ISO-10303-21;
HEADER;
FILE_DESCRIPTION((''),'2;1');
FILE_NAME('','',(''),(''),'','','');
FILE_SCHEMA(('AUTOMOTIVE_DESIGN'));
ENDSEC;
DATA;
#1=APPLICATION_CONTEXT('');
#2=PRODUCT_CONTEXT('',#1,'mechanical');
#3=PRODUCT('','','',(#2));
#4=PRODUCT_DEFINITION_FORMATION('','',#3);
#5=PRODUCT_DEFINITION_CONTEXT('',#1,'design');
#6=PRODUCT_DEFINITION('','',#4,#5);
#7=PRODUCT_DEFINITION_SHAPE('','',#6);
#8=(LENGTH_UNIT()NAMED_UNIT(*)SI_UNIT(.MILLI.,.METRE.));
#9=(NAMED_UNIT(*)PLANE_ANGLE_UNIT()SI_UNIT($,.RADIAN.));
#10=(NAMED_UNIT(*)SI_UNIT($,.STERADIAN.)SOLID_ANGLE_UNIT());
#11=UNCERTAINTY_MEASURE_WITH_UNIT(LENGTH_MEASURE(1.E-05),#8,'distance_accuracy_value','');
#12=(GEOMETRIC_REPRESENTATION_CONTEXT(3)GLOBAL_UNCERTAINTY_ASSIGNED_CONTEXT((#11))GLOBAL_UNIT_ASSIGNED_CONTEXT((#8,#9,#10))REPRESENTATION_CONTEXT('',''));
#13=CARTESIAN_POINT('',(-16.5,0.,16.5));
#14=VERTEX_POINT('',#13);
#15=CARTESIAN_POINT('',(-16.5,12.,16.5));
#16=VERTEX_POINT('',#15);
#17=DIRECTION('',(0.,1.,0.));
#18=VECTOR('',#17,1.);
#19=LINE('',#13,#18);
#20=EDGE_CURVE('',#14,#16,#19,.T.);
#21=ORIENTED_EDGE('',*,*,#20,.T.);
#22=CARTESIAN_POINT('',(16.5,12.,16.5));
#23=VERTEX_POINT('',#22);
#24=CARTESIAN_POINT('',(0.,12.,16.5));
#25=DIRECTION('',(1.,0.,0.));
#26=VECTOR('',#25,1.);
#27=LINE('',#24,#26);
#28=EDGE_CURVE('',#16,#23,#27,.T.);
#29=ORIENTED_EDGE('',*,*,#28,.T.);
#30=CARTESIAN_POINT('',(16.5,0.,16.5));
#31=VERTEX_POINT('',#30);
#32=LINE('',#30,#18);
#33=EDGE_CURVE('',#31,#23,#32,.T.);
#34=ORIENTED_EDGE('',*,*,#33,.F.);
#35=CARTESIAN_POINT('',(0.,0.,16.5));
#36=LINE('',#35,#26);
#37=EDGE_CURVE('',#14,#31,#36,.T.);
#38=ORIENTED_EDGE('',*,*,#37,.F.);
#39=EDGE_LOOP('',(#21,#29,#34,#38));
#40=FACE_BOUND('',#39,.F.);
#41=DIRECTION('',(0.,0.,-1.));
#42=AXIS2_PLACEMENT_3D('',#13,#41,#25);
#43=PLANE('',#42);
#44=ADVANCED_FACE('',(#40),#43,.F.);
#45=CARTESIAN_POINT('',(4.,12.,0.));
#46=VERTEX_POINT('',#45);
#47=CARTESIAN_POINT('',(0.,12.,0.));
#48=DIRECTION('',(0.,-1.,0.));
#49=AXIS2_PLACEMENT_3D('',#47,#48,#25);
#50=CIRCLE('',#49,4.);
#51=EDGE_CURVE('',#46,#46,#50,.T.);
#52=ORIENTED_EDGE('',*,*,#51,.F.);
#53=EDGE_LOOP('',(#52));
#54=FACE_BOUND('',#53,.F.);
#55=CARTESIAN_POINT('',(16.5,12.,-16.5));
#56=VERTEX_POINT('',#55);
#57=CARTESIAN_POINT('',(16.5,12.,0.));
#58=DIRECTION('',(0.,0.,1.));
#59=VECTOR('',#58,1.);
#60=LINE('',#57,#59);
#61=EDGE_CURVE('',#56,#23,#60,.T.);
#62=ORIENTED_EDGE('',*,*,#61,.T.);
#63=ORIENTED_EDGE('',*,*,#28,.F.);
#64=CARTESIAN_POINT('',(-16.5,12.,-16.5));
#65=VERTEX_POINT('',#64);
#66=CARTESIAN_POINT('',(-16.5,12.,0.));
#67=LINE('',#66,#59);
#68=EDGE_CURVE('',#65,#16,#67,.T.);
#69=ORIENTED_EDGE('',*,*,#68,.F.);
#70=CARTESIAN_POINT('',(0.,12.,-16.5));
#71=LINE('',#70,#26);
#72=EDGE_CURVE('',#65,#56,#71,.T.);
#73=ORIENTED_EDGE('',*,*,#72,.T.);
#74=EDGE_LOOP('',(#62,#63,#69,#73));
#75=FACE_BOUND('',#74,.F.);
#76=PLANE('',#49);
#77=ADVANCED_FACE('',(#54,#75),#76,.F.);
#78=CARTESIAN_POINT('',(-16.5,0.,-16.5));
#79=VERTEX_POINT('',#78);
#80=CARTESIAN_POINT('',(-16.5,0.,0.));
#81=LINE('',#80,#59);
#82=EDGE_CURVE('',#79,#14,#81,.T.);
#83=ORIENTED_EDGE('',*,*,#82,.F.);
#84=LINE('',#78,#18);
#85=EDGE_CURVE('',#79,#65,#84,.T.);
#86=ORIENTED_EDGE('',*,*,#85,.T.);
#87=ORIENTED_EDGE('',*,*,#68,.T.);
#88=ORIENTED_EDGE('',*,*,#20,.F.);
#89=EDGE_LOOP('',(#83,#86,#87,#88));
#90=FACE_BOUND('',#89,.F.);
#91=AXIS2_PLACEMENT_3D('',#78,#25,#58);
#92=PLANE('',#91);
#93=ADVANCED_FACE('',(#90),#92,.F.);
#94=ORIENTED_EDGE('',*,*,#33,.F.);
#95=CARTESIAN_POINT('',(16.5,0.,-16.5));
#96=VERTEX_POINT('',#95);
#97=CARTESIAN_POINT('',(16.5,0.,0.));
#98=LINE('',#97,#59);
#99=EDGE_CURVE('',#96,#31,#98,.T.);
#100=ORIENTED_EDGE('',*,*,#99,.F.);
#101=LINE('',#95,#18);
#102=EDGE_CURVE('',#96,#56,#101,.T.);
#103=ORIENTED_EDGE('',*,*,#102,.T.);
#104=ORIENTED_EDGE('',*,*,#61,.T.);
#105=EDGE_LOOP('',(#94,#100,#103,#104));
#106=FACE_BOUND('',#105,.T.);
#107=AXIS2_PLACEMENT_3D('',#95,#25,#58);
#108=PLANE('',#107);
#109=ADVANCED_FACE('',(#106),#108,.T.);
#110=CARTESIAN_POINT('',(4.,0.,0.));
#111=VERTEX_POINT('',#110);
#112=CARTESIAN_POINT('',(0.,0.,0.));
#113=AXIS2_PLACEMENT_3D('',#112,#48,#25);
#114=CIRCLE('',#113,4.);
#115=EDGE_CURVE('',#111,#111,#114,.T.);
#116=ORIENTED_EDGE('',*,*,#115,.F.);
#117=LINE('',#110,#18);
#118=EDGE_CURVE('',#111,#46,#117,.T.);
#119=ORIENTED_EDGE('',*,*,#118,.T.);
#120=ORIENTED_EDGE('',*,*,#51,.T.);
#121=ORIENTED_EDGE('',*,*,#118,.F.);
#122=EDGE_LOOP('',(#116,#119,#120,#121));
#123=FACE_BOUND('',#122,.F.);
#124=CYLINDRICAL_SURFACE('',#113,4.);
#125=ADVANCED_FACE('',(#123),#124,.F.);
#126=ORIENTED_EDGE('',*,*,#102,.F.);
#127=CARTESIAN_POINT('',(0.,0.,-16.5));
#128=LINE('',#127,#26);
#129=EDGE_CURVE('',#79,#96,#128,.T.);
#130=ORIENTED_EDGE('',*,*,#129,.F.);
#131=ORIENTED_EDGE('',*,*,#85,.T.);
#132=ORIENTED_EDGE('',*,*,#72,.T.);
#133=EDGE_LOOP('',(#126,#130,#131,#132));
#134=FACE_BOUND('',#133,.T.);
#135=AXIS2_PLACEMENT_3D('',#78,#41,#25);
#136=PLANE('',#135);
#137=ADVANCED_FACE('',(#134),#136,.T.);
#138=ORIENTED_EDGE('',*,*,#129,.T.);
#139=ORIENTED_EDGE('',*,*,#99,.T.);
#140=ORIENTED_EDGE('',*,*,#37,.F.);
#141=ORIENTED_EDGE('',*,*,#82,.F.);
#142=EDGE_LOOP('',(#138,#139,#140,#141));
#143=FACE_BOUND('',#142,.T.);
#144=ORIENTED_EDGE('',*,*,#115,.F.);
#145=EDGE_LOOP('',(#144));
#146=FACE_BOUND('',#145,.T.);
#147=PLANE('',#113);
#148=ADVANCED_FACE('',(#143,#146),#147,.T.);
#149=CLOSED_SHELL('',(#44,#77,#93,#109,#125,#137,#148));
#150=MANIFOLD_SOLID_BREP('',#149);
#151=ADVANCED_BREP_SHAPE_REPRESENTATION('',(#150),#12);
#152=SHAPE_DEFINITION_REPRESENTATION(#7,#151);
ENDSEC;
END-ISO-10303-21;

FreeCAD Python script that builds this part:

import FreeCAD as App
import Part
import Sketcher

V = App.Vector

doc = App.newDocument("Part")
params = doc.addObject("Spreadsheet::Sheet", "Params")
for row, (alias, value) in enumerate([
    ("sketch1_width", "33 mm"),
    ("pad1_length", "12 mm"),
    ("sketch2_diameter", "8 mm"),
    ("pocket1_length", "12 mm"),
], start=1):
    params.set(f"A{row}", alias)
    params.set(f"B{row}", "=" + value)
    params.setAlias(f"B{row}", alias)

body = doc.addObject("PartDesign::Body", "Body")

# Sketch on XZ plane
sketch1 = body.newObject("Sketcher::SketchObject", "Sketch")
sketch1.AttachmentSupport = (doc.getObject("XZ_Plane"), [""])
sketch1.MapMode = "FlatFace"
sketch1.addGeometry([
    Part.LineSegment(V(-16, 16, 0), V(-16, -16, 0)),
    Part.LineSegment(V(-16, -16, 0), V(16, -16, 0)),
    Part.LineSegment(V(16, -16, 0), V(16, 16, 0)),
    Part.LineSegment(V(16, 16, 0), V(-16, 16, 0)),
], False)
sketch1.addConstraint([
    Sketcher.Constraint("Coincident", 0, 2, 1, 1),
    Sketcher.Constraint("Coincident", 1, 2, 2, 1),
    Sketcher.Constraint("Coincident", 2, 2, 3, 1),
    Sketcher.Constraint("Coincident", 3, 2, 0, 1),
    Sketcher.Constraint("Vertical", 0),
    Sketcher.Constraint("Horizontal", 1),
    Sketcher.Constraint("Vertical", 2),
    Sketcher.Constraint("Horizontal", 3),
    Sketcher.Constraint("Symmetric", 0, 2, 2, 2, -1, 1),
    Sketcher.Constraint("Equal", 3, 0),
    Sketcher.Constraint("DistanceX", 1, 1, 1, 2, 33.0),
])
sketch1.setExpression("Constraints[10]", "Params.sketch1_width")
pad1 = body.newObject("PartDesign::Pad", "Pad")
pad1.Profile = sketch1
pad1.setExpression("Length", "Params.pad1_length")
pad1.Reversed = True

# Sketch on XZ plane
sketch2 = body.newObject("Sketcher::SketchObject", "Sketch001")
sketch2.AttachmentSupport = (doc.getObject("XZ_Plane"), [""])
sketch2.MapMode = "FlatFace"
sketch2.addGeometry(Part.Circle(V(0, 0, 0), V(0, 0, 1), 4), False)
sketch2.addConstraint([
    Sketcher.Constraint("Coincident", 0, 3, -1, 1),
    Sketcher.Constraint("Diameter", 0, 8.0),
])
sketch2.setExpression("Constraints[1]", "Params.sketch2_diameter")
pocket1 = body.newObject("PartDesign::Pocket", "Pocket")
pocket1.Profile = sketch2
pocket1.setExpression("Length", "Params.pocket1_length")

doc.recompute()
